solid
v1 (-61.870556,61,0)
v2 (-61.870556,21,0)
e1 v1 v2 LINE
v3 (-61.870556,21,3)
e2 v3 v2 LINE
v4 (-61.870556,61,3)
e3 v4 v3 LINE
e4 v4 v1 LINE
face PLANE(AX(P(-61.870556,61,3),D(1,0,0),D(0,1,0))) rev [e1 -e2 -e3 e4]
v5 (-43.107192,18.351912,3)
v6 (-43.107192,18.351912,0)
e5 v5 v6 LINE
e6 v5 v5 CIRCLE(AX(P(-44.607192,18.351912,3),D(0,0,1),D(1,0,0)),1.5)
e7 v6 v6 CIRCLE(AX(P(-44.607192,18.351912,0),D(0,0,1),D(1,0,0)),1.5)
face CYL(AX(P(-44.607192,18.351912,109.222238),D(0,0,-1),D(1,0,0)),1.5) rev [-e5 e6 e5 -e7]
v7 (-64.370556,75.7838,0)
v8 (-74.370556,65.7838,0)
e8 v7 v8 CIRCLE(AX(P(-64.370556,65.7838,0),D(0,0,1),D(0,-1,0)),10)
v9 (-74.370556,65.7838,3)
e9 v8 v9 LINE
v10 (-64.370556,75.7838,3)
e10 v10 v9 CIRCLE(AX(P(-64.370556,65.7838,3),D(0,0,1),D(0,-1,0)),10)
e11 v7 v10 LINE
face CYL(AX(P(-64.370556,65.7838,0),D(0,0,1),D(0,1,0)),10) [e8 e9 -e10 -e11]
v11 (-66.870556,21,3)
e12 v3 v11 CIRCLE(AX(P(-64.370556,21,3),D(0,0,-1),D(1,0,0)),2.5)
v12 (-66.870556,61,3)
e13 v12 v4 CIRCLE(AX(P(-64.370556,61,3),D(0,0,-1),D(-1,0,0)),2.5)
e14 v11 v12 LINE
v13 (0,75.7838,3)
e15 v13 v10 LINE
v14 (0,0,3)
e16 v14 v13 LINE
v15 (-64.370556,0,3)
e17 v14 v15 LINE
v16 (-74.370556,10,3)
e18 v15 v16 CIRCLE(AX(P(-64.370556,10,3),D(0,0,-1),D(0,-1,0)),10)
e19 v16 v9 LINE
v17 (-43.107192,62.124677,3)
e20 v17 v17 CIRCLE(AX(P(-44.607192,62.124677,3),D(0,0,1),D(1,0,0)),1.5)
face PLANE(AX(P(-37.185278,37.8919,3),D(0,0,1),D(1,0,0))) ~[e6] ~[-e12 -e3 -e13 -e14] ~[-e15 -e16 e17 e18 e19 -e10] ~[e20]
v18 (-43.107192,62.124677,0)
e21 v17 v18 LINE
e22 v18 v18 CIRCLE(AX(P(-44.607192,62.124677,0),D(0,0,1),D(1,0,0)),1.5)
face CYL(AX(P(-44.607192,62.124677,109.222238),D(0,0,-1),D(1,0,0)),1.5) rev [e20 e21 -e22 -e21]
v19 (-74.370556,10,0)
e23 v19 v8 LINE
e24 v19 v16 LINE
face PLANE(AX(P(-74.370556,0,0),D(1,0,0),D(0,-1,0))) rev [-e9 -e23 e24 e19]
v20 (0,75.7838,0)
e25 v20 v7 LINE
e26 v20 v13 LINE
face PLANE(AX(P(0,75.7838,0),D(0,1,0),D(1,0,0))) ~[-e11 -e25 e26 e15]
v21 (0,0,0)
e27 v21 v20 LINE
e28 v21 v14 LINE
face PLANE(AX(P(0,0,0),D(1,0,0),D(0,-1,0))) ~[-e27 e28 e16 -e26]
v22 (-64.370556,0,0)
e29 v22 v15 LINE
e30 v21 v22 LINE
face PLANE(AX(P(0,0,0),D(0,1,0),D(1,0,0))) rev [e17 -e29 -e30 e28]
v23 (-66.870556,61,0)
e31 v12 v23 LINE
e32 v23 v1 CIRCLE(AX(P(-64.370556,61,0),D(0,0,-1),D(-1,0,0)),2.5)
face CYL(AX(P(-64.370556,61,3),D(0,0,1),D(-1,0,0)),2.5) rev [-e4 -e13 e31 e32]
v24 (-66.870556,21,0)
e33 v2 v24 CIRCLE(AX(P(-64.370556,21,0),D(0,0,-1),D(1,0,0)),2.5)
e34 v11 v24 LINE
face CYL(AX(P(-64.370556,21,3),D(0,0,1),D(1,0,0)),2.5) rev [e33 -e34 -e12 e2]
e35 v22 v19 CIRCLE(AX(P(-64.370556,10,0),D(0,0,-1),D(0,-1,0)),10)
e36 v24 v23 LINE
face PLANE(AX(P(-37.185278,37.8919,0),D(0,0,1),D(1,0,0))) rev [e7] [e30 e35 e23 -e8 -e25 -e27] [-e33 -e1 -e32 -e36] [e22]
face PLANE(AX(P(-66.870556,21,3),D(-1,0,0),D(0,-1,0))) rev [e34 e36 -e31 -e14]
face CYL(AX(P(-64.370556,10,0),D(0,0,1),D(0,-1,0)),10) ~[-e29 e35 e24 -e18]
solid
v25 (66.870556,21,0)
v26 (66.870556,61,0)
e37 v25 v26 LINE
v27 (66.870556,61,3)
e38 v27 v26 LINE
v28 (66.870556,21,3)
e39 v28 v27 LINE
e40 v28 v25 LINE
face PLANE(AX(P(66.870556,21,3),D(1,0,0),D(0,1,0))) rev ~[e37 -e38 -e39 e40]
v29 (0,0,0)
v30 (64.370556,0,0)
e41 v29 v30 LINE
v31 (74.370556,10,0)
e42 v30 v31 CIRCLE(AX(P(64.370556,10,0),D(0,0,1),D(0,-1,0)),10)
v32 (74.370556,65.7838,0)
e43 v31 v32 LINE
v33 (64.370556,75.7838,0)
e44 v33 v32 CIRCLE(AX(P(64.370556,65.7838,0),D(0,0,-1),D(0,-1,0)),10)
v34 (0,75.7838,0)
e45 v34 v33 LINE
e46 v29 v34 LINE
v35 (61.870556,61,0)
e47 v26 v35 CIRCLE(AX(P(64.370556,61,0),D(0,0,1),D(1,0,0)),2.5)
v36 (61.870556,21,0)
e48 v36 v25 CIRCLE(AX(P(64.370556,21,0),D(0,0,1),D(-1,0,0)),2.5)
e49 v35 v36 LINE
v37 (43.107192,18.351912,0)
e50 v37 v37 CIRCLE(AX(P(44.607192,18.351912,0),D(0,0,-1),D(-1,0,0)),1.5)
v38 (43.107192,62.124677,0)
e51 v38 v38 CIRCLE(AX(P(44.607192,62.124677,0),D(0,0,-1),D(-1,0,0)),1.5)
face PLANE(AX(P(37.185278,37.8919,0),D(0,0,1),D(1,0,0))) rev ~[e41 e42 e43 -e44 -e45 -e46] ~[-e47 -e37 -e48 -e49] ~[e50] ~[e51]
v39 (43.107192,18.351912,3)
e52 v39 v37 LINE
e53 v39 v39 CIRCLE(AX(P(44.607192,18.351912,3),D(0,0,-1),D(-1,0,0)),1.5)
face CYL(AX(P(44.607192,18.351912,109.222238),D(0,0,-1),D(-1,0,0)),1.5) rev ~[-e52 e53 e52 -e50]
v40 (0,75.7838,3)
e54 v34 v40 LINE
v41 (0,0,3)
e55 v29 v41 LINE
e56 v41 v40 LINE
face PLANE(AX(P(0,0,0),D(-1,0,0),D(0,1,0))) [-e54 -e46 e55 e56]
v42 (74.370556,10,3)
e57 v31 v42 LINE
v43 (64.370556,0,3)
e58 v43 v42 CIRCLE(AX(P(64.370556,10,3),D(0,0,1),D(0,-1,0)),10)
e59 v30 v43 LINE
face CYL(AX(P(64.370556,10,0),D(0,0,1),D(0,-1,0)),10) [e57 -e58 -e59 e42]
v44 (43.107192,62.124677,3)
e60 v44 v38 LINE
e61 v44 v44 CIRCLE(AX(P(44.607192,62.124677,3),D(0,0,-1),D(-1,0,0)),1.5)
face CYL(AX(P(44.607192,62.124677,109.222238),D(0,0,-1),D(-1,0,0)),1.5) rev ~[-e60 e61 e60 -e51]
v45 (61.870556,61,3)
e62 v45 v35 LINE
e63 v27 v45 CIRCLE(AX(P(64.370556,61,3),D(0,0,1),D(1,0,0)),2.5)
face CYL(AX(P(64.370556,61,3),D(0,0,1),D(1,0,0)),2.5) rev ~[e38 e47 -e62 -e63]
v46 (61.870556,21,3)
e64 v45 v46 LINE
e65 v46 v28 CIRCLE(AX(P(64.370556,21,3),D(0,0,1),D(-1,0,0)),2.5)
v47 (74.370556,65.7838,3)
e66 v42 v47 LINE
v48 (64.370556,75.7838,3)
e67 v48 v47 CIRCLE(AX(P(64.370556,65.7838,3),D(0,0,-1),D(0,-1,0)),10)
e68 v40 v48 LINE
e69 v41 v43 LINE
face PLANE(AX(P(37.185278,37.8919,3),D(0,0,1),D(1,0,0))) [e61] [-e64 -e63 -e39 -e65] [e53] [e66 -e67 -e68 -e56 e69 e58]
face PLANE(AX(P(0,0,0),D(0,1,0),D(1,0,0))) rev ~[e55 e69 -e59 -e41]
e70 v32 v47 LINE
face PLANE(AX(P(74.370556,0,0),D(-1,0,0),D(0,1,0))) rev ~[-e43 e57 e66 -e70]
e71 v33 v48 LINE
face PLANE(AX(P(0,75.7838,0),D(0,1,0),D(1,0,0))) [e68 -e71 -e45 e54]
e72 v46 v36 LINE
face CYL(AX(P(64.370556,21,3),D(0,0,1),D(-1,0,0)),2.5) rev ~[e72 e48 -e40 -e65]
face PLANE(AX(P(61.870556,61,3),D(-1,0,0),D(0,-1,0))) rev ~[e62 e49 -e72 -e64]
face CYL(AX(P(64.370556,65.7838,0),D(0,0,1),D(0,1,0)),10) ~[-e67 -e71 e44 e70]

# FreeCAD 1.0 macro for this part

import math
import FreeCAD as App
import Part
import Sketcher
from FreeCAD import Vector
Q = App.Units.Quantity


def edges_at(feature, points):
    """Names of the edges that pass closest to the given points."""
    edges = feature.Shape.Edges
    near = lambda p: min(range(len(edges)), key=lambda i: edges[i].distToShape(Part.Vertex(*p))[0])
    return sorted({f"Edge{near(p) + 1}" for p in points})

doc = App.newDocument("Part")
body = doc.addObject("PartDesign::Body", "Body")

sketch1 = body.newObject("Sketcher::SketchObject", "Sketch")
sketch1.AttachmentSupport = (doc.getObject("XY_Plane"), [""])
sketch1.MapMode = "FlatFace"
sketch1.addGeometry([
    Part.LineSegment(Vector(0, 76, 0), Vector(0, 0, 0)),
    Part.LineSegment(Vector(0, 0, 0), Vector(74, 0, 0)),
    Part.LineSegment(Vector(74, 0, 0), Vector(74, 76, 0)),
    Part.LineSegment(Vector(74, 76, 0), Vector(0, 76, 0)),
], False)
sketch1.addConstraint([
    Sketcher.Constraint("Coincident", 0, 2, 1, 1),
    Sketcher.Constraint("Coincident", 1, 2, 2, 1),
    Sketcher.Constraint("Coincident", 2, 2, 3, 1),
    Sketcher.Constraint("Coincident", 3, 2, 0, 1),
    Sketcher.Constraint("Vertical", 0),
    Sketcher.Constraint("Horizontal", 1),
    Sketcher.Constraint("Vertical", 2),
    Sketcher.Constraint("Horizontal", 3),
    Sketcher.Constraint("Coincident", 0, 2, -1, 1),
    Sketcher.Constraint("DistanceY", 0, 2, 0, 1, Q("75.7838 mm")),
    Sketcher.Constraint("DistanceX", 1, 1, 1, 2, Q("74.370556 mm")),
])
pad1 = body.newObject("PartDesign::Pad", "Pad")
pad1.Profile = sketch1
pad1.Length = 3

sketch2 = body.newObject("Sketcher::SketchObject", "Sketch001")
sketch2.AttachmentSupport = (doc.getObject("XY_Plane"), [""])
sketch2.MapMode = "FlatFace"
sketch2.AttachmentOffset = App.Placement(Vector(0, 0, 3), App.Rotation())
sketch2.addGeometry([
    Part.Circle(Vector(44.6, 62.1, 0), Vector(0, 0, 1), 1.5),
    Part.Circle(Vector(44.6, 18.4, 0), Vector(0, 0, 1), 1.5),
], False)
sketch2.addConstraint([
    Sketcher.Constraint("Equal", 0, 1),
    Sketcher.Constraint("Vertical", 0, 3, 1, 3),
    Sketcher.Constraint("Diameter", 0, Q("3 mm")),
    Sketcher.Constraint("DistanceX", -1, 1, 0, 3, Q("44.607192 mm")),
    Sketcher.Constraint("DistanceY", -1, 1, 1, 3, Q("18.351912 mm")),
    Sketcher.Constraint("DistanceY", -1, 1, 0, 3, Q("62.124677 mm")),
])
doc.recompute()
hole = body.newObject("PartDesign::Hole", "Hole")
hole.Profile = sketch2
hole.ThreadType = "None"
hole.Diameter = 3
hole.DepthType = "ThroughAll"

sketch3 = body.newObject("Sketcher::SketchObject", "Sketch002")
sketch3.AttachmentSupport = (doc.getObject("XY_Plane"), [""])
sketch3.MapMode = "FlatFace"
sketch3.AttachmentOffset = App.Placement(Vector(0, 0, 3), App.Rotation())
sketch3.addGeometry([
    Part.ArcOfCircle(Part.Circle(Vector(64.4, 21, 0), Vector(0, 0, 1), 2.5), math.radians(180), math.radians(360)),
    Part.LineSegment(Vector(66.9, 21, 0), Vector(66.9, 61, 0)),
    Part.ArcOfCircle(Part.Circle(Vector(64.4, 61, 0), Vector(0, 0, 1), 2.5), math.radians(0), math.radians(180)),
    Part.LineSegment(Vector(61.9, 61, 0), Vector(61.9, 21, 0)),
], False)
sketch3.addConstraint([
    Sketcher.Constraint("Tangent", 0, 2, 1, 1),
    Sketcher.Constraint("Tangent", 1, 2, 2, 1),
    Sketcher.Constraint("Tangent", 2, 2, 3, 1),
    Sketcher.Constraint("Tangent", 3, 2, 0, 1),
    Sketcher.Constraint("Vertical", 1),
    Sketcher.Constraint("Vertical", 3),
    Sketcher.Constraint("Radius", 0, Q("2.5 mm")),
    Sketcher.Constraint("DistanceY", 1, 1, 1, 2, Q("40 mm")),
    Sketcher.Constraint("DistanceY", -1, 1, 0, 3, Q("21 mm")),
    Sketcher.Constraint("DistanceX", -1, 1, 0, 3, Q("64.370556 mm")),
])
pocket1 = body.newObject("PartDesign::Pocket", "Pocket")
pocket1.Profile = sketch3
pocket1.Length = 77.581309
doc.recompute()

fillet = body.newObject("PartDesign::Fillet", "Fillet")
fillet.Base = (pocket1, edges_at(pocket1, [(74.371, 0, 1.5), (74.371, 75.784, 1.5)]))
fillet.Radius = 10
body2 = doc.addObject("PartDesign::Body", "Body001")
doc.recompute()

mirroring = doc.addObject("Part::Mirroring", "Mirroring")
mirroring.Source = body
mirroring.Base = Vector(0, 0, 0)
mirroring.Normal = Vector(1, 0, 0)
body2.BaseFeature = mirroring
doc.recompute()
mirroring.Visibility = False

doc.recompute()
